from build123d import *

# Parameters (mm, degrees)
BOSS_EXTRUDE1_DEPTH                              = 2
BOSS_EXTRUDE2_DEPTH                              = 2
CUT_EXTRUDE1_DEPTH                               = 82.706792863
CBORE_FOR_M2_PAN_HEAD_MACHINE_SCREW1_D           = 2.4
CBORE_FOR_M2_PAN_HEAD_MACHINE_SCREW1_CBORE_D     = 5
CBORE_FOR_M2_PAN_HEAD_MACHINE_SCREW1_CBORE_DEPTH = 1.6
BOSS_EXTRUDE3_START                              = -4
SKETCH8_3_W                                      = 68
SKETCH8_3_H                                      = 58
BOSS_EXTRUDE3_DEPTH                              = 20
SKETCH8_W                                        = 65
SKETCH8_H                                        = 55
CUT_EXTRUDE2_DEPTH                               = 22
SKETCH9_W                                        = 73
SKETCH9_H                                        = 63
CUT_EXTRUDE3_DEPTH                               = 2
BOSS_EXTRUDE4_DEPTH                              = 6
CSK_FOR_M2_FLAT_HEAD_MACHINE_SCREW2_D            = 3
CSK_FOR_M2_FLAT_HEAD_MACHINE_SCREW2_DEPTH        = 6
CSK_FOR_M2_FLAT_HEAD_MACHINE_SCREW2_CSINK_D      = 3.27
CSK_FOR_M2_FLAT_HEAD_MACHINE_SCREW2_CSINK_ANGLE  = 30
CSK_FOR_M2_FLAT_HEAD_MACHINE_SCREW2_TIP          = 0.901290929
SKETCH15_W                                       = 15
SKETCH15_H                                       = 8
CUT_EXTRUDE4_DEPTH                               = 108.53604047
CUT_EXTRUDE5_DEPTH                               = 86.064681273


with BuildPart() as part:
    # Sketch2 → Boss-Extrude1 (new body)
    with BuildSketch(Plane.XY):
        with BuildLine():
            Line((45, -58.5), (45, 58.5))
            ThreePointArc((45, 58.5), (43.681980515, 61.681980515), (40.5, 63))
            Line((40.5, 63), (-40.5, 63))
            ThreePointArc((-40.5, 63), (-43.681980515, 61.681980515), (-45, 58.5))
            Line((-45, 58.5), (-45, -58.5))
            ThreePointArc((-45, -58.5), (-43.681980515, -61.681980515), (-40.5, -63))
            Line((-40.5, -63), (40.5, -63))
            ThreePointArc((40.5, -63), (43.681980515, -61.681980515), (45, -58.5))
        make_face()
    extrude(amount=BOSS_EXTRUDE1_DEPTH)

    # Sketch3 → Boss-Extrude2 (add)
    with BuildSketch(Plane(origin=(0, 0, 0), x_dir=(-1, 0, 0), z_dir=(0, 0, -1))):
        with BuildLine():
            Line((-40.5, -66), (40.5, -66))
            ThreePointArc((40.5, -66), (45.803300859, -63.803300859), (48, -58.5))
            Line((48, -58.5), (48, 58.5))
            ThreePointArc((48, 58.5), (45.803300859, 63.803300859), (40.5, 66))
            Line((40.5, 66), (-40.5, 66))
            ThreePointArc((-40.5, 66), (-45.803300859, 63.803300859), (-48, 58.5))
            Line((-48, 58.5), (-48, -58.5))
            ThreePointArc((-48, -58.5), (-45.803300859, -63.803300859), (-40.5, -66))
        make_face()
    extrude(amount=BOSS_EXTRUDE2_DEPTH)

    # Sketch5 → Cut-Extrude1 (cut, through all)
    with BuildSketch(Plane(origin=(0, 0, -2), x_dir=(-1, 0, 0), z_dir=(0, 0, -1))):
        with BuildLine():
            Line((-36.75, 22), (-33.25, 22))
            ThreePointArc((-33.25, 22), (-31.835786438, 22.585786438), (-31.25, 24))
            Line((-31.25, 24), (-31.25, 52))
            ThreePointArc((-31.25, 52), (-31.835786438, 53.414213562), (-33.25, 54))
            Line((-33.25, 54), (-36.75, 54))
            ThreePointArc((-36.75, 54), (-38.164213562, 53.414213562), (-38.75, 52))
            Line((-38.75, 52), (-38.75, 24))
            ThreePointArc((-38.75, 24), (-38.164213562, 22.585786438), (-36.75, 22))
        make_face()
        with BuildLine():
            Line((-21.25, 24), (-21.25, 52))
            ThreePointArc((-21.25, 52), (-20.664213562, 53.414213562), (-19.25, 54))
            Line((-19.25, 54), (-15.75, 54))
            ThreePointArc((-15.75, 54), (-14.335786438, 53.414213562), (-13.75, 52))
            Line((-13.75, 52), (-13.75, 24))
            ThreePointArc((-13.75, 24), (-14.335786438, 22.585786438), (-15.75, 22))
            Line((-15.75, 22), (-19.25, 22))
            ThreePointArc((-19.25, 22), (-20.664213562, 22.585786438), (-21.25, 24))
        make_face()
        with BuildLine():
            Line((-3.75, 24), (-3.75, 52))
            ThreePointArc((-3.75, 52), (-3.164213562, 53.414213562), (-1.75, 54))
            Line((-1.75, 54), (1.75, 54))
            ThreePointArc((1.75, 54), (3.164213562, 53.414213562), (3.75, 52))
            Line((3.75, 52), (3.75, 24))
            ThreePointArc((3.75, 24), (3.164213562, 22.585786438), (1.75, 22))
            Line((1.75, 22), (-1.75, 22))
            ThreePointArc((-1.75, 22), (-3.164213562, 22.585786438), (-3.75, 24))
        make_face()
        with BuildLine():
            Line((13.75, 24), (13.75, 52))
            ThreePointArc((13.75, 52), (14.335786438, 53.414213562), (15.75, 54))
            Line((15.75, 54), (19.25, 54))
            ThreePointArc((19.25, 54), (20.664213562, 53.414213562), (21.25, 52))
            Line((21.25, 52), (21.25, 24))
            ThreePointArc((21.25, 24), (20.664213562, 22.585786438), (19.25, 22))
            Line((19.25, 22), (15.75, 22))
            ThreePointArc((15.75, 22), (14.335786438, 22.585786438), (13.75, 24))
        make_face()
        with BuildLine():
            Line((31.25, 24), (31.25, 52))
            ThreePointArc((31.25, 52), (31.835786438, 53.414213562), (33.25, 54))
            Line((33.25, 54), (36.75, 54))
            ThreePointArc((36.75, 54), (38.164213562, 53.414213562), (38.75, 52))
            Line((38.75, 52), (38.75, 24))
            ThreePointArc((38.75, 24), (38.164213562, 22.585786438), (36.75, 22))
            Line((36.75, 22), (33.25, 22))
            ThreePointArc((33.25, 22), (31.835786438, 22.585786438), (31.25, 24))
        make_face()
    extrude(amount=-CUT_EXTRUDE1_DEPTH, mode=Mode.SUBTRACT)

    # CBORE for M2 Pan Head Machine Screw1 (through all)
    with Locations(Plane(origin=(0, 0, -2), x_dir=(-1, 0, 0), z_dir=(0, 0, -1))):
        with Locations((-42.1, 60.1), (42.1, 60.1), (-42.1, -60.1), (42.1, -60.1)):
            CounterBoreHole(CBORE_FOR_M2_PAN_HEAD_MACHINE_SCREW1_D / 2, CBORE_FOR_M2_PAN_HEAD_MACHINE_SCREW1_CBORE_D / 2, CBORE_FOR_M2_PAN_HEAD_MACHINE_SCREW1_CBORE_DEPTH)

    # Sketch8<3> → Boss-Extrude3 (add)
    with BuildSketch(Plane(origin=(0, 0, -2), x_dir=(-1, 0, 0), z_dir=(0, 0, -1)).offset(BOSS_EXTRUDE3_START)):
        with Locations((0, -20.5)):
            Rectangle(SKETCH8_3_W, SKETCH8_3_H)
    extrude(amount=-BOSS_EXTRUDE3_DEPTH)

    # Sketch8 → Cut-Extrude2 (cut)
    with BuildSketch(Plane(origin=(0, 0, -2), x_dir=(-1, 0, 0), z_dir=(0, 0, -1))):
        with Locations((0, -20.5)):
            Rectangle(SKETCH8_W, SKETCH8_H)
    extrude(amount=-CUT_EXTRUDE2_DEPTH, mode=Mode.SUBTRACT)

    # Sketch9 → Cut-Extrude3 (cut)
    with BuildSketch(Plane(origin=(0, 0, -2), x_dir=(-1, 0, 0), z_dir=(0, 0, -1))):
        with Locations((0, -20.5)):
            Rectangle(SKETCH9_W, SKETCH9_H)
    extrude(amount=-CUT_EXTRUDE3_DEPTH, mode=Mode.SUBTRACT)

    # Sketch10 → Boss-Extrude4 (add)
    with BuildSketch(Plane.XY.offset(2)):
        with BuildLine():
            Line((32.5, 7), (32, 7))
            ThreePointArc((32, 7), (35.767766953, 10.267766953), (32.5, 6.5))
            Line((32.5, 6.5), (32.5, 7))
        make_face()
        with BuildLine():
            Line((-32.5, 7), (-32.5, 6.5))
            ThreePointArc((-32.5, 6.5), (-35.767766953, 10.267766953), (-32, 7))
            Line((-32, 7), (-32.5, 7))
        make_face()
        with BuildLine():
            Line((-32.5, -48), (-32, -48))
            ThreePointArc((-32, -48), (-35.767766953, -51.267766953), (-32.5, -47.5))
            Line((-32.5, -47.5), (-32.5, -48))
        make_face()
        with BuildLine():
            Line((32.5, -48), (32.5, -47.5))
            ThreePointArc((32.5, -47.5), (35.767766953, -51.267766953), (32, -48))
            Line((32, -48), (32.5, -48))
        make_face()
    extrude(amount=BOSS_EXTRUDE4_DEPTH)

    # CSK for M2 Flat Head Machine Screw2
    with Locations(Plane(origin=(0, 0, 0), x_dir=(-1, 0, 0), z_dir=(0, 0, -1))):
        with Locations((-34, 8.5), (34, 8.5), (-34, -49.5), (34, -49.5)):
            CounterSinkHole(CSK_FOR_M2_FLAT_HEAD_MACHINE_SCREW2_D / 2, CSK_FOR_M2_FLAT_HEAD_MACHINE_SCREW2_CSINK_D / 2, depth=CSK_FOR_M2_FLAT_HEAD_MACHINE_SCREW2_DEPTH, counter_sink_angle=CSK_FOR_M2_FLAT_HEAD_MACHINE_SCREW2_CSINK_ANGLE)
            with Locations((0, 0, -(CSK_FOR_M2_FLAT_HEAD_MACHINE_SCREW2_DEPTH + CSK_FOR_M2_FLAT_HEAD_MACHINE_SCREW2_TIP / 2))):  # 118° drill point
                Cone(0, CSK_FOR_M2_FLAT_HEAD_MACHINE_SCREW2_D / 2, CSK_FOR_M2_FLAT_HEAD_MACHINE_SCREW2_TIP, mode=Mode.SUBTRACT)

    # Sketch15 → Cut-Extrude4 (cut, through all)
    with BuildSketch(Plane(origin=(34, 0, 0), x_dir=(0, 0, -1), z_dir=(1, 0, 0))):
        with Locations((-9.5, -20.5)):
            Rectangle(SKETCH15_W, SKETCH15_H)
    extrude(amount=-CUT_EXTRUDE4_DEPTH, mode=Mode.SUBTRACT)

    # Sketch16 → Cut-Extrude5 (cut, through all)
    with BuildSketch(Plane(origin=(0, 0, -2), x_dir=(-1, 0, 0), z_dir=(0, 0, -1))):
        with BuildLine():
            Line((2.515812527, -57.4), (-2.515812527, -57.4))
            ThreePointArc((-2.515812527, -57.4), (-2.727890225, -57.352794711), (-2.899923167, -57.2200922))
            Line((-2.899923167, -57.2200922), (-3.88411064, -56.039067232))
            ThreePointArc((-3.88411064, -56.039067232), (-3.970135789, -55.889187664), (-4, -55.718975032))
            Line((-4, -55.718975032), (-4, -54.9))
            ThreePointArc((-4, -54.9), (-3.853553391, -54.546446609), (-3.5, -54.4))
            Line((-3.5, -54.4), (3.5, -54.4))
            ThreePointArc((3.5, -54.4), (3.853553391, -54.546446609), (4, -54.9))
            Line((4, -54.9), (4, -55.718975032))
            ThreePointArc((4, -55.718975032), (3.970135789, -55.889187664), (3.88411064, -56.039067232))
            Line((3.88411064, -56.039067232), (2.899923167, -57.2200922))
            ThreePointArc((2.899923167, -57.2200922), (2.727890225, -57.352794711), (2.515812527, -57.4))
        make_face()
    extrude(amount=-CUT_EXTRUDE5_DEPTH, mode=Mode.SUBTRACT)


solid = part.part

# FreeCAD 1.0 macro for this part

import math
import FreeCAD as App
import Part
import Sketcher

V = App.Vector

doc = App.newDocument("Part")
body = doc.addObject("PartDesign::Body", "Body")

# Sketch on XY plane
sketch1 = doc.addObject("Sketcher::SketchObject", "Sketch")
body.addObject(sketch1)
sketch1.AttachmentSupport = (doc.XY_Plane, [""])
sketch1.MapMode = "FlatFace"
sketch1.addGeometry([
    Part.LineSegment(V(45, -58.5, 0), V(45, 58.5, 0)),  # 0
    Part.ArcOfCircle(Part.Circle(V(40.5, 58.5, 0), V(0, 0, 1), 4.5), math.radians(0), math.radians(90)),  # 1
    Part.LineSegment(V(40.5, 63, 0), V(-40.5, 63, 0)),  # 2
    Part.ArcOfCircle(Part.Circle(V(-40.5, 58.5, 0), V(0, 0, 1), 4.5), math.radians(90), math.radians(180)),  # 3
    Part.LineSegment(V(-45, 58.5, 0), V(-45, -58.5, 0)),  # 4
    Part.ArcOfCircle(Part.Circle(V(-40.5, -58.5, 0), V(0, 0, 1), 4.5), math.radians(-180), math.radians(-90)),  # 5
    Part.LineSegment(V(-40.5, -63, 0), V(40.5, -63, 0)),  # 6
    Part.ArcOfCircle(Part.Circle(V(40.5, -58.5, 0), V(0, 0, 1), 4.5), math.radians(-90), math.radians(0)),  # 7
], False)
sketch1.addConstraint([
    Sketcher.Constraint("Tangent", 0, 2, 1, 1),
    Sketcher.Constraint("Tangent", 1, 2, 2, 1),
    Sketcher.Constraint("Tangent", 2, 2, 3, 1),
    Sketcher.Constraint("Tangent", 3, 2, 4, 1),
    Sketcher.Constraint("Tangent", 4, 2, 5, 1),
    Sketcher.Constraint("Tangent", 5, 2, 6, 1),
    Sketcher.Constraint("Tangent", 6, 2, 7, 1),
    Sketcher.Constraint("Tangent", 7, 2, 0, 1),
    Sketcher.Constraint("Vertical", 0),
    Sketcher.Constraint("Horizontal", 2),
    Sketcher.Constraint("Vertical", 4),
    Sketcher.Constraint("Horizontal", 6),
    Sketcher.Constraint("Equal", 1, 3),
    Sketcher.Constraint("Equal", 3, 5),
    Sketcher.Constraint("Equal", 5, 7),
    Sketcher.Constraint("Symmetric", 1, 3, 5, 3, -1, 1),
    Sketcher.Constraint("Radius", 1, 4.5),
    Sketcher.Constraint("DistanceX", 2, 2, 2, 1, 81.0),
    Sketcher.Constraint("DistanceY", 0, 1, 0, 2, 117.0),
])
pad1 = doc.addObject("PartDesign::Pad", "Pad")
body.addObject(pad1)
pad1.Profile = sketch1
pad1.Length = 2

# Sketch on XY plane
sketch2 = doc.addObject("Sketcher::SketchObject", "Sketch001")
body.addObject(sketch2)
sketch2.AttachmentSupport = (doc.XY_Plane, [""])
sketch2.MapMode = "FlatFace"
sketch2.addGeometry([
    Part.LineSegment(V(40.5, -66, 0), V(-40.5, -66, 0)),  # 0
    Part.ArcOfCircle(Part.Circle(V(-40.5, -58.5, 0), V(0, 0, 1), 7.5), math.radians(180), math.radians(270)),  # 1
    Part.LineSegment(V(-48, -58.5, 0), V(-48, 58.5, 0)),  # 2
    Part.ArcOfCircle(Part.Circle(V(-40.5, 58.5, 0), V(0, 0, 1), 7.5), math.radians(90), math.radians(180)),  # 3
    Part.LineSegment(V(-40.5, 66, 0), V(40.5, 66, 0)),  # 4
    Part.ArcOfCircle(Part.Circle(V(40.5, 58.5, 0), V(0, 0, 1), 7.5), math.radians(0), math.radians(90)),  # 5
    Part.LineSegment(V(48, 58.5, 0), V(48, -58.5, 0)),  # 6
    Part.ArcOfCircle(Part.Circle(V(40.5, -58.5, 0), V(0, 0, 1), 7.5), math.radians(-90), math.radians(0)),  # 7
], False)
sketch2.addConstraint([
    Sketcher.Constraint("Tangent", 0, 2, 1, 2),
    Sketcher.Constraint("Tangent", 1, 1, 2, 1),
    Sketcher.Constraint("Tangent", 2, 2, 3, 2),
    Sketcher.Constraint("Tangent", 3, 1, 4, 1),
    Sketcher.Constraint("Tangent", 4, 2, 5, 2),
    Sketcher.Constraint("Tangent", 5, 1, 6, 1),
    Sketcher.Constraint("Tangent", 6, 2, 7, 2),
    Sketcher.Constraint("Tangent", 7, 1, 0, 1),
    Sketcher.Constraint("Horizontal", 0),
    Sketcher.Constraint("Vertical", 2),
    Sketcher.Constraint("Horizontal", 4),
    Sketcher.Constraint("Vertical", 6),
    Sketcher.Constraint("Equal", 1, 3),
    Sketcher.Constraint("Equal", 3, 5),
    Sketcher.Constraint("Equal", 5, 7),
    Sketcher.Constraint("Symmetric", 1, 3, 5, 3, -1, 1),
    Sketcher.Constraint("Radius", 1, 7.5),
    Sketcher.Constraint("DistanceX", 0, 2, 0, 1, 81.0),
    Sketcher.Constraint("DistanceY", 2, 1, 2, 2, 117.0),
])
pad2 = doc.addObject("PartDesign::Pad", "Pad001")
body.addObject(pad2)
pad2.Profile = sketch2
pad2.Length = 2
pad2.Reversed = True

# Sketch on XY plane
sketch3 = doc.addObject("Sketcher::SketchObject", "Sketch002")
body.addObject(sketch3)
sketch3.AttachmentSupport = (doc.XY_Plane, [""])
sketch3.MapMode = "FlatFace"
sketch3.AttachmentOffset = App.Placement(V(0, 0, -2), App.Rotation())
sketch3.addGeometry([
    Part.LineSegment(V(36.75, 22, 0), V(33.25, 22, 0)),  # 0
    Part.ArcOfCircle(Part.Circle(V(33.25, 24, 0), V(0, 0, 1), 2), math.radians(-180), math.radians(-90)),  # 1
    Part.LineSegment(V(31.25, 24, 0), V(31.25, 52, 0)),  # 2
    Part.ArcOfCircle(Part.Circle(V(33.25, 52, 0), V(0, 0, 1), 2), math.radians(90), math.radians(180)),  # 3
    Part.LineSegment(V(33.25, 54, 0), V(36.75, 54, 0)),  # 4
    Part.ArcOfCircle(Part.Circle(V(36.75, 52, 0), V(0, 0, 1), 2), math.radians(0), math.radians(90)),  # 5
    Part.LineSegment(V(38.75, 52, 0), V(38.75, 24, 0)),  # 6
    Part.ArcOfCircle(Part.Circle(V(36.75, 24, 0), V(0, 0, 1), 2), math.radians(-90), math.radians(0)),  # 7
    Part.LineSegment(V(21.25, 52, 0), V(21.25, 24, 0)),  # 8
    Part.ArcOfCircle(Part.Circle(V(19.25, 24, 0), V(0, 0, 1), 2), math.radians(-90), math.radians(0)),  # 9
    Part.LineSegment(V(19.25, 22, 0), V(15.75, 22, 0)),  # 10
    Part.ArcOfCircle(Part.Circle(V(15.75, 24, 0), V(0, 0, 1), 2), math.radians(-180), math.radians(-90)),  # 11
    Part.LineSegment(V(13.75, 24, 0), V(13.75, 52, 0)),  # 12
    Part.ArcOfCircle(Part.Circle(V(15.75, 52, 0), V(0, 0, 1), 2), math.radians(90), math.radians(180)),  # 13
    Part.LineSegment(V(15.75, 54, 0), V(19.25, 54, 0)),  # 14
    Part.ArcOfCircle(Part.Circle(V(19.25, 52, 0), V(0, 0, 1), 2), math.radians(0), math.radians(90)),  # 15
    Part.LineSegment(V(3.75, 52, 0), V(3.75, 24, 0)),  # 16
    Part.ArcOfCircle(Part.Circle(V(1.75, 24, 0), V(0, 0, 1), 2), math.radians(-90), math.radians(0)),  # 17
    Part.LineSegment(V(1.75, 22, 0), V(-1.75, 22, 0)),  # 18
    Part.ArcOfCircle(Part.Circle(V(-1.75, 24, 0), V(0, 0, 1), 2), math.radians(-180), math.radians(-90)),  # 19
    Part.LineSegment(V(-3.75, 24, 0), V(-3.75, 52, 0)),  # 20
    Part.ArcOfCircle(Part.Circle(V(-1.75, 52, 0), V(0, 0, 1), 2), math.radians(90), math.radians(180)),  # 21
    Part.LineSegment(V(-1.75, 54, 0), V(1.75, 54, 0)),  # 22
    Part.ArcOfCircle(Part.Circle(V(1.75, 52, 0), V(0, 0, 1), 2), math.radians(0), math.radians(90)),  # 23
    Part.LineSegment(V(-13.75, 52, 0), V(-13.75, 24, 0)),  # 24
    Part.ArcOfCircle(Part.Circle(V(-15.75, 24, 0), V(0, 0, 1), 2), math.radians(-90), math.radians(0)),  # 25
    Part.LineSegment(V(-15.75, 22, 0), V(-19.25, 22, 0)),  # 26
    Part.ArcOfCircle(Part.Circle(V(-19.25, 24, 0), V(0, 0, 1), 2), math.radians(-180), math.radians(-90)),  # 27
    Part.LineSegment(V(-21.25, 24, 0), V(-21.25, 52, 0)),  # 28
    Part.ArcOfCircle(Part.Circle(V(-19.25, 52, 0), V(0, 0, 1), 2), math.radians(90), math.radians(180)),  # 29
    Part.LineSegment(V(-19.25, 54, 0), V(-15.75, 54, 0)),  # 30
    Part.ArcOfCircle(Part.Circle(V(-15.75, 52, 0), V(0, 0, 1), 2), math.radians(0), math.radians(90)),  # 31
    Part.LineSegment(V(-31.25, 52, 0), V(-31.25, 24, 0)),  # 32
    Part.ArcOfCircle(Part.Circle(V(-33.25, 24, 0), V(0, 0, 1), 2), math.radians(-90), math.radians(0)),  # 33
    Part.LineSegment(V(-33.25, 22, 0), V(-36.75, 22, 0)),  # 34
    Part.ArcOfCircle(Part.Circle(V(-36.75, 24, 0), V(0, 0, 1), 2), math.radians(-180), math.radians(-90)),  # 35
    Part.LineSegment(V(-38.75, 24, 0), V(-38.75, 52, 0)),  # 36
    Part.ArcOfCircle(Part.Circle(V(-36.75, 52, 0), V(0, 0, 1), 2), math.radians(90), math.radians(180)),  # 37
    Part.LineSegment(V(-36.75, 54, 0), V(-33.25, 54, 0)),  # 38
    Part.ArcOfCircle(Part.Circle(V(-33.25, 52, 0), V(0, 0, 1), 2), math.radians(0), math.radians(90)),  # 39
], False)
sketch3.addConstraint([
    Sketcher.Constraint("Tangent", 0, 2, 1, 2),
    Sketcher.Constraint("Tangent", 1, 1, 2, 1),
    Sketcher.Constraint("Tangent", 2, 2, 3, 2),
    Sketcher.Constraint("Tangent", 3, 1, 4, 1),
    Sketcher.Constraint("Tangent", 4, 2, 5, 2),
    Sketcher.Constraint("Tangent", 5, 1, 6, 1),
    Sketcher.Constraint("Tangent", 6, 2, 7, 2),
    Sketcher.Constraint("Tangent", 7, 1, 0, 1),
    Sketcher.Constraint("Tangent", 8, 2, 9, 2),
    Sketcher.Constraint("Tangent", 9, 1, 10, 1),
    Sketcher.Constraint("Tangent", 10, 2, 11, 2),
    Sketcher.Constraint("Tangent", 11, 1, 12, 1),
    Sketcher.Constraint("Tangent", 12, 2, 13, 2),
    Sketcher.Constraint("Tangent", 13, 1, 14, 1),
    Sketcher.Constraint("Tangent", 14, 2, 15, 2),
    Sketcher.Constraint("Tangent", 15, 1, 8, 1),
    Sketcher.Constraint("Tangent", 16, 2, 17, 2),
    Sketcher.Constraint("Tangent", 17, 1, 18, 1),
    Sketcher.Constraint("Tangent", 18, 2, 19, 2),
    Sketcher.Constraint("Tangent", 19, 1, 20, 1),
    Sketcher.Constraint("Tangent", 20, 2, 21, 2),
    Sketcher.Constraint("Tangent", 21, 1, 22, 1),
    Sketcher.Constraint("Tangent", 22, 2, 23, 2),
    Sketcher.Constraint("Tangent", 23, 1, 16, 1),
    Sketcher.Constraint("Tangent", 24, 2, 25, 2),
    Sketcher.Constraint("Tangent", 25, 1, 26, 1),
    Sketcher.Constraint("Tangent", 26, 2, 27, 2),
    Sketcher.Constraint("Tangent", 27, 1, 28, 1),
    Sketcher.Constraint("Tangent", 28, 2, 29, 2),
    Sketcher.Constraint("Tangent", 29, 1, 30, 1),
    Sketcher.Constraint("Tangent", 30, 2, 31, 2),
    Sketcher.Constraint("Tangent", 31, 1, 24, 1),
    Sketcher.Constraint("Tangent", 32, 2, 33, 2),
    Sketcher.Constraint("Tangent", 33, 1, 34, 1),
    Sketcher.Constraint("Tangent", 34, 2, 35, 2),
    Sketcher.Constraint("Tangent", 35, 1, 36, 1),
    Sketcher.Constraint("Tangent", 36, 2, 37, 2),
    Sketcher.Constraint("Tangent", 37, 1, 38, 1),
    Sketcher.Constraint("Tangent", 38, 2, 39, 2),
    Sketcher.Constraint("Tangent", 39, 1, 32, 1),
    Sketcher.Constraint("Horizontal", 0),
    Sketcher.Constraint("Vertical", 2),
    Sketcher.Constraint("Horizontal", 4),
    Sketcher.Constraint("Vertical", 6),
    Sketcher.Constraint("Vertical", 8),
    Sketcher.Constraint("Horizontal", 10),
    Sketcher.Constraint("Vertical", 12),
    Sketcher.Constraint("Horizontal", 14),
    Sketcher.Constraint("Vertical", 16),
    Sketcher.Constraint("Horizontal", 18),
    Sketcher.Constraint("Vertical", 20),
    Sketcher.Constraint("Horizontal", 22),
    Sketcher.Constraint("Vertical", 24),
    Sketcher.Constraint("Horizontal", 26),
    Sketcher.Constraint("Vertical", 28),
    Sketcher.Constraint("Horizontal", 30),
    Sketcher.Constraint("Vertical", 32),
    Sketcher.Constraint("Horizontal", 34),
    Sketcher.Constraint("Vertical", 36),
    Sketcher.Constraint("Horizontal", 38),
    Sketcher.Constraint("Equal", 1, 3),
    Sketcher.Constraint("Equal", 3, 5),
    Sketcher.Constraint("Equal", 5, 7),
    Sketcher.Constraint("Equal", 7, 9),
    Sketcher.Constraint("Equal", 9, 11),
    Sketcher.Constraint("Equal", 11, 13),
    Sketcher.Constraint("Equal", 13, 15),
    Sketcher.Constraint("Equal", 15, 17),
    Sketcher.Constraint("Equal", 17, 19),
    Sketcher.Constraint("Equal", 19, 21),
    Sketcher.Constraint("Equal", 21, 23),
    Sketcher.Constraint("Equal", 23, 25),
    Sketcher.Constraint("Equal", 25, 27),
    Sketcher.Constraint("Equal", 27, 29),
    Sketcher.Constraint("Equal", 29, 31),
    Sketcher.Constraint("Equal", 31, 33),
    Sketcher.Constraint("Equal", 33, 35),
    Sketcher.Constraint("Equal", 35, 37),
    Sketcher.Constraint("Equal", 37, 39),
    Sketcher.Constraint("Symmetric", 11, 3, 25, 3, -2),
    Sketcher.Constraint("Symmetric", 15, 3, 29, 3, -2),
    Sketcher.Constraint("Symmetric", 1, 3, 33, 3, -2),
    Sketcher.Constraint("Symmetric", 5, 3, 37, 3, -2),
    Sketcher.Constraint("Horizontal", 7, 3, 9, 3),
    Sketcher.Constraint("Horizontal", 5, 3, 13, 3),
    Sketcher.Constraint("Horizontal", 11, 3, 17, 3),
    Sketcher.Constraint("Horizontal", 15, 3, 21, 3),
    Sketcher.Constraint("Equal", 4, 10),
    Sketcher.Constraint("Equal", 14, 18),
    Sketcher.Constraint("Radius", 1, 2.0),
    Sketcher.Constraint("DistanceY", 2, 1, 2, 2, 28.0),
    Sketcher.Constraint("DistanceX", 0, 2, 0, 1, 3.5),
    Sketcher.Constraint("DistanceY", -1, 1, 1, 3, 24.0),
    Sketcher.Constraint("DistanceX", 9, 3, 1, 3, 14.0),
    Sketcher.Constraint("DistanceX", 17, 3, 11, 3, 14.0),
    Sketcher.Constraint("DistanceX", 25, 3, 19, 3, 14.0),
])
pocket1 = doc.addObject("PartDesign::Pocket", "Pocket")
body.addObject(pocket1)
pocket1.Profile = sketch3
pocket1.Type = "ThroughAll"
pocket1.Reversed = True

# Sketch on XY plane
sketch4 = doc.addObject("Sketcher::SketchObject", "Sketch003")
body.addObject(sketch4)
sketch4.AttachmentSupport = (doc.XY_Plane, [""])
sketch4.MapMode = "FlatFace"
sketch4.AttachmentOffset = App.Placement(V(0, 0, -2), App.Rotation())
sketch4.addGeometry([
    Part.Circle(V(42.1, 60.1, 0), V(0, 0, 1), 1.2),
    Part.Circle(V(-42.1, 60.1, 0), V(0, 0, 1), 1.2),
    Part.Circle(V(42.1, -60.1, 0), V(0, 0, 1), 1.2),
    Part.Circle(V(-42.1, -60.1, 0), V(0, 0, 1), 1.2),
], False)
sketch4.addConstraint([
    Sketcher.Constraint("Equal", 0, 1),
    Sketcher.Constraint("Equal", 1, 2),
    Sketcher.Constraint("Equal", 2, 3),
    Sketcher.Constraint("Symmetric", 1, 3, 2, 3, -1, 1),
    Sketcher.Constraint("Symmetric", 0, 3, 3, 3, -1, 1),
    Sketcher.Constraint("Symmetric", 0, 3, 1, 3, -2),
    Sketcher.Constraint("Diameter", 0, 2.4),
    Sketcher.Constraint("DistanceX", -1, 1, 0, 3, 42.1),
    Sketcher.Constraint("DistanceY", -1, 1, 0, 3, 60.1),
])
doc.recompute()
hole = doc.addObject("PartDesign::Hole", "Hole")
body.addObject(hole)
hole.Profile = sketch4
hole.ThreadType = "None"
hole.Diameter = 2.4
hole.DepthType = "ThroughAll"
hole.HoleCutType = "Counterbore"
hole.HoleCutDiameter = 5
hole.HoleCutDepth = 1.6
hole.Reversed = True

# Sketch on XY plane
sketch5 = doc.addObject("Sketcher::SketchObject", "Sketch004")
body.addObject(sketch5)
sketch5.AttachmentSupport = (doc.XY_Plane, [""])
sketch5.MapMode = "FlatFace"
sketch5.AttachmentOffset = App.Placement(V(0, 0, 2), App.Rotation())
sketch5.addGeometry([
    Part.LineSegment(V(34, 8.5, 0), V(34, -49.5, 0)),
    Part.LineSegment(V(34, -49.5, 0), V(-34, -49.5, 0)),
    Part.LineSegment(V(-34, -49.5, 0), V(-34, 8.5, 0)),
    Part.LineSegment(V(-34, 8.5, 0), V(34, 8.5, 0)),
], False)
sketch5.addConstraint([
    Sketcher.Constraint("Coincident", 0, 2, 1, 1),
    Sketcher.Constraint("Coincident", 1, 2, 2, 1),
    Sketcher.Constraint("Coincident", 2, 2, 3, 1),
    Sketcher.Constraint("Coincident", 3, 2, 0, 1),
    Sketcher.Constraint("Vertical", 0),
    Sketcher.Constraint("Horizontal", 1),
    Sketcher.Constraint("Vertical", 2),
    Sketcher.Constraint("Horizontal", 3),
    Sketcher.Constraint("DistanceX", 1, 2, 1, 1, 68.0),
    Sketcher.Constraint("DistanceY", 0, 2, 0, 1, 58.0),
    Sketcher.Constraint("DistanceX", -1, 1, 0, 2, 34.0),
    Sketcher.Constraint("DistanceY", 0, 2, -1, 1, 49.5),
])
pad3 = doc.addObject("PartDesign::Pad", "Pad002")
body.addObject(pad3)
pad3.Profile = sketch5
pad3.Length = 20

# Sketch on XY plane
sketch6 = doc.addObject("Sketcher::SketchObject", "Sketch005")
body.addObject(sketch6)
sketch6.AttachmentSupport = (doc.XY_Plane, [""])
sketch6.MapMode = "FlatFace"
sketch6.AttachmentOffset = App.Placement(V(0, 0, -2), App.Rotation())
sketch6.addGeometry([
    Part.LineSegment(V(32.5, 7, 0), V(32.5, -48, 0)),
    Part.LineSegment(V(32.5, -48, 0), V(-32.5, -48, 0)),
    Part.LineSegment(V(-32.5, -48, 0), V(-32.5, 7, 0)),
    Part.LineSegment(V(-32.5, 7, 0), V(32.5, 7, 0)),
], False)
sketch6.addConstraint([
    Sketcher.Constraint("Coincident", 0, 2, 1, 1),
    Sketcher.Constraint("Coincident", 1, 2, 2, 1),
    Sketcher.Constraint("Coincident", 2, 2, 3, 1),
    Sketcher.Constraint("Coincident", 3, 2, 0, 1),
    Sketcher.Constraint("Vertical", 0),
    Sketcher.Constraint("Horizontal", 1),
    Sketcher.Constraint("Vertical", 2),
    Sketcher.Constraint("Horizontal", 3),
    Sketcher.Constraint("DistanceX", 1, 2, 1, 1, 65.0),
    Sketcher.Constraint("DistanceY", 0, 2, 0, 1, 55.0),
    Sketcher.Constraint("DistanceY", 0, 2, -1, 1, 48.0),
    Sketcher.Constraint("DistanceX", -1, 1, 0, 2, 32.5),
])
pocket2 = doc.addObject("PartDesign::Pocket", "Pocket001")
body.addObject(pocket2)
pocket2.Profile = sketch6
pocket2.Length = 22
pocket2.Reversed = True

# Sketch on XY plane
sketch7 = doc.addObject("Sketcher::SketchObject", "Sketch006")
body.addObject(sketch7)
sketch7.AttachmentSupport = (doc.XY_Plane, [""])
sketch7.MapMode = "FlatFace"
sketch7.AttachmentOffset = App.Placement(V(0, 0, -2), App.Rotation())
sketch7.addGeometry([
    Part.LineSegment(V(36.5, 11, 0), V(36.5, -52, 0)),
    Part.LineSegment(V(36.5, -52, 0), V(-36.5, -52, 0)),
    Part.LineSegment(V(-36.5, -52, 0), V(-36.5, 11, 0)),
    Part.LineSegment(V(-36.5, 11, 0), V(36.5, 11, 0)),
], False)
sketch7.addConstraint([
    Sketcher.Constraint("Coincident", 0, 2, 1, 1),
    Sketcher.Constraint("Coincident", 1, 2, 2, 1),
    Sketcher.Constraint("Coincident", 2, 2, 3, 1),
    Sketcher.Constraint("Coincident", 3, 2, 0, 1),
    Sketcher.Constraint("Vertical", 0),
    Sketcher.Constraint("Horizontal", 1),
    Sketcher.Constraint("Vertical", 2),
    Sketcher.Constraint("Horizontal", 3),
    Sketcher.Constraint("DistanceX", 1, 2, 1, 1, 73.0),
    Sketcher.Constraint("DistanceY", 0, 2, 0, 1, 63.0),
    Sketcher.Constraint("DistanceY", 0, 2, -1, 1, 52.0),
    Sketcher.Constraint("DistanceX", -1, 1, 0, 2, 36.5),
])
pocket3 = doc.addObject("PartDesign::Pocket", "Pocket002")
body.addObject(pocket3)
pocket3.Profile = sketch7
pocket3.Length = 2
pocket3.Reversed = True

# Sketch on XY plane
sketch8 = doc.addObject("Sketcher::SketchObject", "Sketch007")
body.addObject(sketch8)
sketch8.AttachmentSupport = (doc.XY_Plane, [""])
sketch8.MapMode = "FlatFace"
sketch8.AttachmentOffset = App.Placement(V(0, 0, 2), App.Rotation())
sketch8.addGeometry([
    Part.LineSegment(V(32, 7, 0), V(32.5, 7, 0)),  # 0
    Part.LineSegment(V(32.5, 7, 0), V(32.5, 6.5, 0)),  # 1
    Part.ArcOfCircle(Part.Circle(V(34, 8.5, 0), V(0, 0, 1), 2.5), math.radians(-126.869898), math.radians(216.869898)),  # 2
    Part.LineSegment(V(-32.5, 6.5, 0), V(-32.5, 7, 0)),  # 3
    Part.LineSegment(V(-32.5, 7, 0), V(-32, 7, 0)),  # 4
    Part.ArcOfCircle(Part.Circle(V(-34, 8.5, 0), V(0, 0, 1), 2.5), math.radians(-36.869898), math.radians(306.869898)),  # 5
    Part.LineSegment(V(-32, -48, 0), V(-32.5, -48, 0)),  # 6
    Part.LineSegment(V(-32.5, -48, 0), V(-32.5, -47.5, 0)),  # 7
    Part.ArcOfCircle(Part.Circle(V(-34, -49.5, 0), V(0, 0, 1), 2.5), math.radians(53.130102), math.radians(396.869898)),  # 8
    Part.LineSegment(V(32.5, -47.5, 0), V(32.5, -48, 0)),  # 9
    Part.LineSegment(V(32.5, -48, 0), V(32, -48, 0)),  # 10
    Part.ArcOfCircle(Part.Circle(V(34, -49.5, 0), V(0, 0, 1), 2.5), math.radians(143.130102), math.radians(486.869898)),  # 11
], False)
sketch8.addConstraint([
    Sketcher.Constraint("Coincident", 0, 2, 1, 1),
    Sketcher.Constraint("Coincident", 1, 2, 2, 1),
    Sketcher.Constraint("Coincident", 2, 2, 0, 1),
    Sketcher.Constraint("Coincident", 3, 2, 4, 1),
    Sketcher.Constraint("Coincident", 4, 2, 5, 1),
    Sketcher.Constraint("Coincident", 5, 2, 3, 1),
    Sketcher.Constraint("Coincident", 6, 2, 7, 1),
    Sketcher.Constraint("Coincident", 7, 2, 8, 1),
    Sketcher.Constraint("Coincident", 8, 2, 6, 1),
    Sketcher.Constraint("Coincident", 9, 2, 10, 1),
    Sketcher.Constraint("Coincident", 10, 2, 11, 1),
    Sketcher.Constraint("Coincident", 11, 2, 9, 1),
    Sketcher.Constraint("Horizontal", 0),
    Sketcher.Constraint("Vertical", 1),
    Sketcher.Constraint("Vertical", 3),
    Sketcher.Constraint("Horizontal", 4),
    Sketcher.Constraint("Horizontal", 6),
    Sketcher.Constraint("Vertical", 7),
    Sketcher.Constraint("Vertical", 9),
    Sketcher.Constraint("Horizontal", 10),
    Sketcher.Constraint("Equal", 2, 5),
    Sketcher.Constraint("Equal", 5, 8),
    Sketcher.Constraint("Equal", 8, 11),
    Sketcher.Constraint("Symmetric", 2, 3, 5, 3, -2),
    Sketcher.Constraint("Symmetric", 8, 3, 11, 3, -2),
    Sketcher.Constraint("Symmetric", 0, 2, 3, 2, -2),
    Sketcher.Constraint("Symmetric", 6, 2, 9, 2, -2),
    Sketcher.Constraint("Vertical", 5, 3, 8, 3),
    Sketcher.Constraint("Vertical", 5, 2, 6, 2),
    Sketcher.Constraint("Vertical", 4, 2, 8, 2),
    Sketcher.Constraint("Equal", 10, 1),
    Sketcher.Constraint("Radius", 2, 2.5),
    Sketcher.Constraint("DistanceX", 0, 1, 0, 2, 0.5),
    Sketcher.Constraint("DistanceX", -1, 1, 2, 3, 34.0),
    Sketcher.Constraint("DistanceY", -1, 1, 0, 2, 7.0),
    Sketcher.Constraint("DistanceY", 6, 2, -1, 1, 48.0),
])
pad4 = doc.addObject("PartDesign::Pad", "Pad003")
body.addObject(pad4)
pad4.Profile = sketch8
pad4.Length = 6

# Sketch on XY plane
sketch9 = doc.addObject("Sketcher::SketchObject", "Sketch008")
body.addObject(sketch9)
sketch9.AttachmentSupport = (doc.XY_Plane, [""])
sketch9.MapMode = "FlatFace"
sketch9.addGeometry([
    Part.Circle(V(34, 8.5, 0), V(0, 0, 1), 1.5),
    Part.Circle(V(-34, 8.5, 0), V(0, 0, 1), 1.5),
    Part.Circle(V(34, -49.5, 0), V(0, 0, 1), 1.5),
    Part.Circle(V(-34, -49.5, 0), V(0, 0, 1), 1.5),
], False)
sketch9.addConstraint([
    Sketcher.Constraint("Equal", 0, 1),
    Sketcher.Constraint("Equal", 1, 2),
    Sketcher.Constraint("Equal", 2, 3),
    Sketcher.Constraint("Symmetric", 0, 3, 1, 3, -2),
    Sketcher.Constraint("Symmetric", 2, 3, 3, 3, -2),
    Sketcher.Constraint("Vertical", 0, 3, 2, 3),
    Sketcher.Constraint("Diameter", 0, 3.0),
    Sketcher.Constraint("DistanceX", -1, 1, 0, 3, 34.0),
    Sketcher.Constraint("DistanceY", 2, 3, 0, 3, 58.0),
    Sketcher.Constraint("DistanceY", -1, 1, 0, 3, 8.5),
])
doc.recompute()
hole2 = doc.addObject("PartDesign::Hole", "Hole001")
body.addObject(hole2)
hole2.Profile = sketch9
hole2.ThreadType = "None"
hole2.Diameter = 3
hole2.DepthType = "Dimension"
hole2.Depth = 6
hole2.DrillPoint = "Angled"
hole2.DrillPointAngle = 118
hole2.HoleCutType = "Countersink"
hole2.HoleCutDiameter = 3.27
hole2.HoleCutCountersinkAngle = 30
hole2.Reversed = True

# Sketch on YZ plane
sketch10 = doc.addObject("Sketcher::SketchObject", "Sketch009")
body.addObject(sketch10)
sketch10.AttachmentSupport = (doc.YZ_Plane, [""])
sketch10.MapMode = "FlatFace"
sketch10.AttachmentOffset = App.Placement(V(0, 0, 34), App.Rotation())
sketch10.addGeometry([
    Part.LineSegment(V(-16.5, 17, 0), V(-24.5, 17, 0)),
    Part.LineSegment(V(-24.5, 17, 0), V(-24.5, 2, 0)),
    Part.LineSegment(V(-24.5, 2, 0), V(-16.5, 2, 0)),
    Part.LineSegment(V(-16.5, 2, 0), V(-16.5, 17, 0)),
], False)
sketch10.addConstraint([
    Sketcher.Constraint("Coincident", 0, 2, 1, 1),
    Sketcher.Constraint("Coincident", 1, 2, 2, 1),
    Sketcher.Constraint("Coincident", 2, 2, 3, 1),
    Sketcher.Constraint("Coincident", 3, 2, 0, 1),
    Sketcher.Constraint("Horizontal", 0),
    Sketcher.Constraint("Vertical", 1),
    Sketcher.Constraint("Horizontal", 2),
    Sketcher.Constraint("Vertical", 3),
    Sketcher.Constraint("DistanceX", 0, 2, 0, 1, 8.0),
    Sketcher.Constraint("DistanceY", 1, 2, 1, 1, 15.0),
    Sketcher.Constraint("DistanceY", -1, 1, 0, 2, 17.0),
    Sketcher.Constraint("DistanceX", 0, 2, -1, 1, 24.5),
])
pocket4 = doc.addObject("PartDesign::Pocket", "Pocket003")
body.addObject(pocket4)
pocket4.Profile = sketch10
pocket4.Type = "ThroughAll"

# Sketch on XY plane
sketch11 = doc.addObject("Sketcher::SketchObject", "Sketch010")
body.addObject(sketch11)
sketch11.AttachmentSupport = (doc.XY_Plane, [""])
sketch11.MapMode = "FlatFace"
sketch11.AttachmentOffset = App.Placement(V(0, 0, -2), App.Rotation())
sketch11.addGeometry([
    Part.LineSegment(V(2.515813, -57.4, 0), V(-2.515813, -57.4, 0)),  # 0
    Part.ArcOfCircle(Part.Circle(V(-2.515813, -56.9, 0), V(0, 0, 1), 0.5), math.radians(-140.194429), math.radians(-90)),  # 1
    Part.LineSegment(V(-2.899923, -57.220092, 0), V(-3.884111, -56.039067, 0)),  # 2
    Part.ArcOfCircle(Part.Circle(V(-3.5, -55.718975, 0), V(0, 0, 1), 0.5), math.radians(180), math.radians(219.805571)),  # 3
    Part.LineSegment(V(-4, -55.718975, 0), V(-4, -54.9, 0)),  # 4
    Part.ArcOfCircle(Part.Circle(V(-3.5, -54.9, 0), V(0, 0, 1), 0.5), math.radians(90), math.radians(180)),  # 5
    Part.LineSegment(V(-3.5, -54.4, 0), V(3.5, -54.4, 0)),  # 6
    Part.ArcOfCircle(Part.Circle(V(3.5, -54.9, 0), V(0, 0, 1), 0.5), math.radians(0), math.radians(90)),  # 7
    Part.LineSegment(V(4, -54.9, 0), V(4, -55.718975, 0)),  # 8
    Part.ArcOfCircle(Part.Circle(V(3.5, -55.718975, 0), V(0, 0, 1), 0.5), math.radians(-39.805571), math.radians(0)),  # 9
    Part.LineSegment(V(3.884111, -56.039067, 0), V(2.899923, -57.220092, 0)),  # 10
    Part.ArcOfCircle(Part.Circle(V(2.515813, -56.9, 0), V(0, 0, 1), 0.5), math.radians(-90), math.radians(-39.805571)),  # 11
], False)
sketch11.addConstraint([
    Sketcher.Constraint("Tangent", 0, 2, 1, 2),
    Sketcher.Constraint("Tangent", 1, 1, 2, 1),
    Sketcher.Constraint("Tangent", 2, 2, 3, 2),
    Sketcher.Constraint("Tangent", 3, 1, 4, 1),
    Sketcher.Constraint("Tangent", 4, 2, 5, 2),
    Sketcher.Constraint("Tangent", 5, 1, 6, 1),
    Sketcher.Constraint("Tangent", 6, 2, 7, 2),
    Sketcher.Constraint("Tangent", 7, 1, 8, 1),
    Sketcher.Constraint("Tangent", 8, 2, 9, 2),
    Sketcher.Constraint("Tangent", 9, 1, 10, 1),
    Sketcher.Constraint("Tangent", 10, 2, 11, 2),
    Sketcher.Constraint("Tangent", 11, 1, 0, 1),
    Sketcher.Constraint("Horizontal", 0),
    Sketcher.Constraint("Vertical", 4),
    Sketcher.Constraint("Horizontal", 6),
    Sketcher.Constraint("Vertical", 8),
    Sketcher.Constraint("Equal", 1, 3),
    Sketcher.Constraint("Equal", 3, 5),
    Sketcher.Constraint("Equal", 5, 7),
    Sketcher.Constraint("Equal", 7, 9),
    Sketcher.Constraint("Equal", 9, 11),
    Sketcher.Constraint("Symmetric", 3, 3, 9, 3, -2),
    Sketcher.Constraint("Horizontal", 2, 2, 9, 1),
    Sketcher.Constraint("Radius", 1, 0.5),
    Sketcher.Constraint("DistanceX", 6, 1, 6, 2, 7.0),
    Sketcher.Constraint("DistanceY", 1, 3, 5, 3, 2.0),
    Sketcher.Constraint("DistanceY", 1, 3, -1, 1, 56.9),
    Sketcher.Constraint("DistanceX", 2, 2, 1, 3, 1.368298),
    Sketcher.Constraint("Distance", 2, 1.53735),
])
pocket5 = doc.addObject("PartDesign::Pocket", "Pocket004")
body.addObject(pocket5)
pocket5.Profile = sketch11
pocket5.Type = "ThroughAll"
pocket5.Reversed = True

doc.recompute()
